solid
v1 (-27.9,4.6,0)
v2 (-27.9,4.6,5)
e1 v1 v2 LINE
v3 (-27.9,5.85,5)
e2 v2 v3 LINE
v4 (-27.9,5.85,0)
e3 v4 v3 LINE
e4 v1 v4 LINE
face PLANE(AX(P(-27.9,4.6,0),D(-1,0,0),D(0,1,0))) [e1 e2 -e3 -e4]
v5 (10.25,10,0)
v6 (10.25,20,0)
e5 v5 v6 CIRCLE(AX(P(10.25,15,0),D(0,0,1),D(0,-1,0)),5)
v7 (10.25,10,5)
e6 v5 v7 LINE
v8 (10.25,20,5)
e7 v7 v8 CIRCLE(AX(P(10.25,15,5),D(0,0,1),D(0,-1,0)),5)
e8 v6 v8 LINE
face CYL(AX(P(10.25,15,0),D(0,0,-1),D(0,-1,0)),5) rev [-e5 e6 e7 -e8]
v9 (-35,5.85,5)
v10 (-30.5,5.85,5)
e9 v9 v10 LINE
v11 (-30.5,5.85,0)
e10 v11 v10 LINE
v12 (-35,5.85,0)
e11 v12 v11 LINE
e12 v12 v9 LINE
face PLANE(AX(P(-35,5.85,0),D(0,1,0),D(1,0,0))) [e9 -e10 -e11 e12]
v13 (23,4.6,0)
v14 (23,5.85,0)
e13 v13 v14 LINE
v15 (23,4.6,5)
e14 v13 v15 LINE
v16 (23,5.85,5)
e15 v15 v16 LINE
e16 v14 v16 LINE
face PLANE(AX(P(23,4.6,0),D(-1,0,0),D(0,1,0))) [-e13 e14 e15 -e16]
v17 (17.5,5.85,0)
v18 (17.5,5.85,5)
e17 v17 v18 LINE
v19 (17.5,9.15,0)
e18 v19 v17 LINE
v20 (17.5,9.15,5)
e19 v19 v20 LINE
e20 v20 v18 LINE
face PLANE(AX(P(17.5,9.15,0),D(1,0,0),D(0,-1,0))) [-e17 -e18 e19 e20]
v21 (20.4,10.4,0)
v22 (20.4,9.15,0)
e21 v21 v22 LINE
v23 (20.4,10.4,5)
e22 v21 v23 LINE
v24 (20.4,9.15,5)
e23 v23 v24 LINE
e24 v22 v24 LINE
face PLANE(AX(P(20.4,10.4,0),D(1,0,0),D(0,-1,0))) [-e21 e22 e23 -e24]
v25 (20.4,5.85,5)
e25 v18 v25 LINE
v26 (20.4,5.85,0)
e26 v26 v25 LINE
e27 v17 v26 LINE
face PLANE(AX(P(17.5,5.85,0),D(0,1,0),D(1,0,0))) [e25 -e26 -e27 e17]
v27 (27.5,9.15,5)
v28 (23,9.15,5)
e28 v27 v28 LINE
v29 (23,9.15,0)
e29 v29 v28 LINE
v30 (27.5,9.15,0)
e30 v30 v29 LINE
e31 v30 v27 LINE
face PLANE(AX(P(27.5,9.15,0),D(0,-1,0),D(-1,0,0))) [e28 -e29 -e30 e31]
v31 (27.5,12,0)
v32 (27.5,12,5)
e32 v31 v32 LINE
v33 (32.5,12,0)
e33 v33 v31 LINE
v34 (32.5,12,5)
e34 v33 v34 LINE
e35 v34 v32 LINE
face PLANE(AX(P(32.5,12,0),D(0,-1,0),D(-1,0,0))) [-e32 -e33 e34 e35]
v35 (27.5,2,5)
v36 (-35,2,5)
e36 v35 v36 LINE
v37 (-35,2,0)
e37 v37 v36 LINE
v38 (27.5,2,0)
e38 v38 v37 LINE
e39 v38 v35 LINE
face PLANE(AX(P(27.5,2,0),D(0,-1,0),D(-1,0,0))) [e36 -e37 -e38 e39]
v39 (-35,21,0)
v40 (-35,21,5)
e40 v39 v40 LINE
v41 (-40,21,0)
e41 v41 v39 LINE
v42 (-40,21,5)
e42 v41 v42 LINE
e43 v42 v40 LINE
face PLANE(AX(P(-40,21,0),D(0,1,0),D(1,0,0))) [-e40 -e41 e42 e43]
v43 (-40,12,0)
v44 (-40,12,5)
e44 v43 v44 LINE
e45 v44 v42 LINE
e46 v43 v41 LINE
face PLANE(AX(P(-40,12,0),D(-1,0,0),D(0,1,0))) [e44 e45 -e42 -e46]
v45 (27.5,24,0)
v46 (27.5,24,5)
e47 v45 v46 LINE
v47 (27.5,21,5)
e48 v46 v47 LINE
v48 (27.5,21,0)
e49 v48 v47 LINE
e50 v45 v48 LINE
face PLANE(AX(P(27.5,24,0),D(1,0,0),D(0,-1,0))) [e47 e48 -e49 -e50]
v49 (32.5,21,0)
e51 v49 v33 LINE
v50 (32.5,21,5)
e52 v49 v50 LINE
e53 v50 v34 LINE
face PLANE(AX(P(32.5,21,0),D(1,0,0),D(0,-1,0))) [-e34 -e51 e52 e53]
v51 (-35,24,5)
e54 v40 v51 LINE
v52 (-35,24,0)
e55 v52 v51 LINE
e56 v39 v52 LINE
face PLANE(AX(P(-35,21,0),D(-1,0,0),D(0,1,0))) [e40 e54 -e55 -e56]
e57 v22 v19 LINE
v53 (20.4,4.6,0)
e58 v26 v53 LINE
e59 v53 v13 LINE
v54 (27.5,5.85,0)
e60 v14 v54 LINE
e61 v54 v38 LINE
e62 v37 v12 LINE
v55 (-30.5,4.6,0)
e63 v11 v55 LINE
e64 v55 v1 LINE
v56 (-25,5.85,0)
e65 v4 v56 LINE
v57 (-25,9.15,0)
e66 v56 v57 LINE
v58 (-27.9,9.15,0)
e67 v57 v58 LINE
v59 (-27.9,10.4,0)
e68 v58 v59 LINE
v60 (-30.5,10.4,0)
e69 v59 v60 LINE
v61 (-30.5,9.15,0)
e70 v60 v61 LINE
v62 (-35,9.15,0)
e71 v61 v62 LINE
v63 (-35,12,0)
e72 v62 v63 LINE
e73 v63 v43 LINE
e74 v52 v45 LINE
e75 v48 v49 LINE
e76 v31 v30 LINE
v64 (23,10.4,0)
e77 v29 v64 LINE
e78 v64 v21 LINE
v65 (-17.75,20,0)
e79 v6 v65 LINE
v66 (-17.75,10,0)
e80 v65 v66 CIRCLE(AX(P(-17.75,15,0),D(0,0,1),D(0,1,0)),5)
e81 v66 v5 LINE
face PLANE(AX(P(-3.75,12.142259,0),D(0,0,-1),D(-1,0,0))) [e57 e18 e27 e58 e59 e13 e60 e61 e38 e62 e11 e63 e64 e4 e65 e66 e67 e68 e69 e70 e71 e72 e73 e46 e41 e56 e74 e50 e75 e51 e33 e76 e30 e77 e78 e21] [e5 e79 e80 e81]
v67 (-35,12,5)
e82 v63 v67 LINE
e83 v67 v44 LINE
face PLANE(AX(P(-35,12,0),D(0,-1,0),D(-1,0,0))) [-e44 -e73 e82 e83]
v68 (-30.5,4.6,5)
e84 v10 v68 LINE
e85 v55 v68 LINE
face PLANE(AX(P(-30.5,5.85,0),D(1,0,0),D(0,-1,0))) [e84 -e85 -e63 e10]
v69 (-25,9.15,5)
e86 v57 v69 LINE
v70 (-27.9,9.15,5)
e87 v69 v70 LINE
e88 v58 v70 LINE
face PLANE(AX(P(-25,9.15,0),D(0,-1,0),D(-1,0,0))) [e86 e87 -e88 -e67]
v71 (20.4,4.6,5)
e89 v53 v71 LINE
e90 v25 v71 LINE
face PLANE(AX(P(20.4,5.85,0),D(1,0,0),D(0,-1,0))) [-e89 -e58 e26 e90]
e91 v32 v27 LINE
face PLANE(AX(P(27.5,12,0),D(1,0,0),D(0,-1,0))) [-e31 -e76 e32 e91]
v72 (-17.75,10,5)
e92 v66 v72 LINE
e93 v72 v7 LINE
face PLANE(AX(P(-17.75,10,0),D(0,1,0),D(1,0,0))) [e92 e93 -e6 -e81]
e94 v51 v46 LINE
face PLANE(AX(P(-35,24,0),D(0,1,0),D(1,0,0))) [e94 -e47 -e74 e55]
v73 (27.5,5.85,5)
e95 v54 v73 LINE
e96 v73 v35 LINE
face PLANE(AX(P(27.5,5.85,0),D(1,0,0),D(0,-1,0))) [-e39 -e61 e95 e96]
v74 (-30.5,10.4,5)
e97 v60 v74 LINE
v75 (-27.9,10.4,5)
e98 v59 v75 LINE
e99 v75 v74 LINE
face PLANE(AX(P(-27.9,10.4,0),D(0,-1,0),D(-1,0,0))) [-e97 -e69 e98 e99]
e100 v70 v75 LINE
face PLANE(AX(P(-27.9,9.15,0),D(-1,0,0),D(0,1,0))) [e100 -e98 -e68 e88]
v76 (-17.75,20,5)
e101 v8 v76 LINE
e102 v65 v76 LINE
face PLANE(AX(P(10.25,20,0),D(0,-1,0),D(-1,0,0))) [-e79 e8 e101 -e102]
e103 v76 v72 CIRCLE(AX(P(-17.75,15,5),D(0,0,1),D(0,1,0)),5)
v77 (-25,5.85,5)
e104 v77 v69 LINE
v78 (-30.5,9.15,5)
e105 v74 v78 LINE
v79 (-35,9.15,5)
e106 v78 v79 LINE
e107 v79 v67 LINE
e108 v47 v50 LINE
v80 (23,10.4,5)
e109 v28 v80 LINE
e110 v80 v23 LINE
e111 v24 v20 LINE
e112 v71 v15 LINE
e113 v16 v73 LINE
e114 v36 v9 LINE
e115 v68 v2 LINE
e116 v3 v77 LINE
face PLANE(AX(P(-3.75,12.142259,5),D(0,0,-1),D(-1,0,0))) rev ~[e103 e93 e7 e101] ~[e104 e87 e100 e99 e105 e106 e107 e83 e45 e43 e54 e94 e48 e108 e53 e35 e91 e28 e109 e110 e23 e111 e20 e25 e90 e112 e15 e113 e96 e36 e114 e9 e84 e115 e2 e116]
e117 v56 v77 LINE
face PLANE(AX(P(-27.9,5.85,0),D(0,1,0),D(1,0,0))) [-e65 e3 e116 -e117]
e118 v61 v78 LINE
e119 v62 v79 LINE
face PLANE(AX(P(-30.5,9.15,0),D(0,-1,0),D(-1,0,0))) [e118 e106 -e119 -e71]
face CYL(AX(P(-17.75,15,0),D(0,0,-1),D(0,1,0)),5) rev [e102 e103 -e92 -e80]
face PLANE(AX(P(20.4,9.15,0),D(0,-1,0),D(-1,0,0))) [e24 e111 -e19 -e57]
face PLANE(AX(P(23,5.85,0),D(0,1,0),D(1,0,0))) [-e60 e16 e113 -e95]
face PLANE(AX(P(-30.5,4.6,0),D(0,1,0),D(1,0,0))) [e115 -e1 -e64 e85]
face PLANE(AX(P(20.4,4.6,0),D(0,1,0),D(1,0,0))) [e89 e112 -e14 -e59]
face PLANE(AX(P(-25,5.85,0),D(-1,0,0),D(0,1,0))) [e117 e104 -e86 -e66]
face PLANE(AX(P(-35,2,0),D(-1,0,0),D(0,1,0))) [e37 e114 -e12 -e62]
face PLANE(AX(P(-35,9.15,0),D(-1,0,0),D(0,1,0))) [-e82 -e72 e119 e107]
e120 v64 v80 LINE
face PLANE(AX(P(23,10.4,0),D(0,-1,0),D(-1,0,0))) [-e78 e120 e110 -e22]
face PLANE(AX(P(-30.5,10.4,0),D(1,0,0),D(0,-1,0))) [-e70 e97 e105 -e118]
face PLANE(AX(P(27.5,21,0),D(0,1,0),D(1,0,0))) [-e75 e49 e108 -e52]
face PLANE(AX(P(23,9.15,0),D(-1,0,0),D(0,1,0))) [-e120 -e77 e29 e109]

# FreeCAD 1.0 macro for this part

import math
import FreeCAD as App
import Part
import Sketcher
from FreeCAD import Vector
Q = App.Units.Quantity


def add_polygon(sketch, points):
    """Adds a closed chain of lines whose ends are joined by coincident constraints."""
    first, n = sketch.GeometryCount, len(points)
    for a, b in zip(points, points[1:] + points[:1]):
        sketch.addGeometry(Part.LineSegment(App.Vector(*a, 0), App.Vector(*b, 0)), False)
    for i in range(n):
        sketch.addConstraint(Sketcher.Constraint("Coincident", first + i, 2, first + (i + 1) % n, 1))

doc = App.newDocument("Part")
params = doc.addObject("Spreadsheet::Sheet", "Params")
for row, (alias, value) in enumerate([
    ("sketch1_radius", "5 mm"),
    ("sketch1_width", "5 mm"),
    ("sketch1_width2", "28 mm"),
    ("sketch1_height", "9 mm"),
    ("sketch1_height2", "3 mm"),
    ("pad1_length", "5 mm"),
], start=1):
    params.set(f"A{row}", alias)
    params.set(f"B{row}", "=" + value)
    params.setAlias(f"B{row}", alias)

body = doc.addObject("PartDesign::Body", "Body")

# Sketch on XY plane
sketch1 = body.newObject("Sketcher::SketchObject", "Sketch")
sketch1.AttachmentSupport = (doc.getObject("XY_Plane"), [""])
sketch1.MapMode = "FlatFace"
add_polygon(sketch1, [(27.5, 12), (32.5, 12), (32.5, 21), (27.5, 21), (27.5, 24), (-35, 24), (-35, 21), (-40, 21), (-40, 12), (-35, 12), (-35, 9.2), (-30.5, 9.2), (-30.5, 10.4), (-27.9, 10.4), (-27.9, 9.2), (-25, 9.2), (-25, 5.8), (-27.9, 5.8), (-27.9, 4.6), (-30.5, 4.6), (-30.5, 5.8), (-35, 5.8), (-35, 2), (27.5, 2), (27.5, 5.8), (23, 5.8), (23, 4.6), (20.4, 4.6), (20.4, 5.8), (17.5, 5.8), (17.5, 9.2), (20.4, 9.2), (20.4, 10.4), (23, 10.4), (23, 9.2), (27.5, 9.2)])  # lines 0-35
sketch1.addGeometry(Part.ArcOfCircle(Part.Circle(Vector(10.2, 15, 0), Vector(0, 0, 1), 5), math.radians(-90), math.radians(90)), False)  # 36
sketch1.addGeometry(Part.LineSegment(Vector(10.2, 10, 0), Vector(-17.8, 10, 0)), False)  # 37
sketch1.addGeometry(Part.ArcOfCircle(Part.Circle(Vector(-17.8, 15, 0), Vector(0, 0, 1), 5), math.radians(90), math.radians(270)), False)  # 38
sketch1.addGeometry(Part.LineSegment(Vector(-17.8, 20, 0), Vector(10.2, 20, 0)), False)  # 39
sketch1.addConstraint(Sketcher.Constraint("Tangent", 36, 1, 37, 1))
sketch1.addConstraint(Sketcher.Constraint("Tangent", 37, 2, 38, 2))
sketch1.addConstraint(Sketcher.Constraint("Tangent", 38, 1, 39, 1))
sketch1.addConstraint(Sketcher.Constraint("Tangent", 39, 2, 36, 2))
sketch1.addConstraint(Sketcher.Constraint("Horizontal", 0))
sketch1.addConstraint(Sketcher.Constraint("Vertical", 1))
sketch1.addConstraint(Sketcher.Constraint("Horizontal", 2))
sketch1.addConstraint(Sketcher.Constraint("Vertical", 3))
sketch1.addConstraint(Sketcher.Constraint("Horizontal", 4))
sketch1.addConstraint(Sketcher.Constraint("Vertical", 5))
sketch1.addConstraint(Sketcher.Constraint("Horizontal", 6))
sketch1.addConstraint(Sketcher.Constraint("Vertical", 7))
sketch1.addConstraint(Sketcher.Constraint("Horizontal", 8))
sketch1.addConstraint(Sketcher.Constraint("Vertical", 9))
sketch1.addConstraint(Sketcher.Constraint("Horizontal", 10))
sketch1.addConstraint(Sketcher.Constraint("Vertical", 11))
sketch1.addConstraint(Sketcher.Constraint("Horizontal", 12))
sketch1.addConstraint(Sketcher.Constraint("Vertical", 13))
sketch1.addConstraint(Sketcher.Constraint("Horizontal", 14))
sketch1.addConstraint(Sketcher.Constraint("Vertical", 15))
sketch1.addConstraint(Sketcher.Constraint("Horizontal", 16))
sketch1.addConstraint(Sketcher.Constraint("Vertical", 17))
sketch1.addConstraint(Sketcher.Constraint("Horizontal", 18))
sketch1.addConstraint(Sketcher.Constraint("Vertical", 19))
sketch1.addConstraint(Sketcher.Constraint("Horizontal", 20))
sketch1.addConstraint(Sketcher.Constraint("Vertical", 21))
sketch1.addConstraint(Sketcher.Constraint("Horizontal", 22))
sketch1.addConstraint(Sketcher.Constraint("Vertical", 23))
sketch1.addConstraint(Sketcher.Constraint("Horizontal", 24))
sketch1.addConstraint(Sketcher.Constraint("Vertical", 25))
sketch1.addConstraint(Sketcher.Constraint("Horizontal", 26))
sketch1.addConstraint(Sketcher.Constraint("Vertical", 27))
sketch1.addConstraint(Sketcher.Constraint("Horizontal", 28))
sketch1.addConstraint(Sketcher.Constraint("Vertical", 29))
sketch1.addConstraint(Sketcher.Constraint("Horizontal", 30))
sketch1.addConstraint(Sketcher.Constraint("Vertical", 31))
sketch1.addConstraint(Sketcher.Constraint("Horizontal", 32))
sketch1.addConstraint(Sketcher.Constraint("Vertical", 33))
sketch1.addConstraint(Sketcher.Constraint("Horizontal", 34))
sketch1.addConstraint(Sketcher.Constraint("Vertical", 35))
sketch1.addConstraint(Sketcher.Constraint("Horizontal", 37))
sketch1.addConstraint(Sketcher.Constraint("Horizontal", 39))
sketch1.addConstraint(Sketcher.Constraint("Horizontal", 2, 2, 5, 2))
sketch1.addConstraint(Sketcher.Constraint("Horizontal", 0, 2, 7, 2))
sketch1.addConstraint(Sketcher.Constraint("Horizontal", 10, 2, 13, 2))
sketch1.addConstraint(Sketcher.Constraint("Horizontal", 16, 2, 19, 2))
sketch1.addConstraint(Sketcher.Constraint("Horizontal", 20, 2, 23, 2))
sketch1.addConstraint(Sketcher.Constraint("Horizontal", 18, 2, 25, 2))
sketch1.addConstraint(Sketcher.Constraint("Horizontal", 24, 2, 27, 2))
sketch1.addConstraint(Sketcher.Constraint("Horizontal", 14, 2, 29, 2))
sketch1.addConstraint(Sketcher.Constraint("Horizontal", 12, 2, 31, 2))
sketch1.addConstraint(Sketcher.Constraint("Horizontal", 30, 2, 33, 2))
sketch1.addConstraint(Sketcher.Constraint("Vertical", 5, 2, 8, 2))
sketch1.addConstraint(Sketcher.Constraint("Vertical", 13, 2, 16, 2))
sketch1.addConstraint(Sketcher.Constraint("Vertical", 11, 2, 18, 2))
sketch1.addConstraint(Sketcher.Constraint("Vertical", 9, 2, 20, 2))
sketch1.addConstraint(Sketcher.Constraint("Vertical", 3, 2, 22, 2))
sketch1.addConstraint(Sketcher.Constraint("Vertical", 27, 2, 30, 2))
sketch1.addConstraint(Sketcher.Constraint("Vertical", 25, 2, 32, 2))
sketch1.addConstraint(Sketcher.Constraint("Vertical", 23, 2, 34, 2))
sketch1.addConstraint(Sketcher.Constraint("Equal", 2, 6))
sketch1.addConstraint(Sketcher.Constraint("Equal", 20, 24))
sketch1.addConstraint(Sketcher.Constraint("Equal", 18, 26))
sketch1.addConstraint(Sketcher.Constraint("Equal", 16, 28))
sketch1.addConstraint(Sketcher.Constraint("Equal", 13, 17))
sketch1.addConstraint(Sketcher.Constraint("Radius", 36, Q("5 mm")))
sketch1.addConstraint(Sketcher.Constraint("DistanceX", 0, 1, 0, 2, Q("5 mm")))
sketch1.addConstraint(Sketcher.Constraint("DistanceX", 37, 2, 37, 1, Q("28 mm")))
sketch1.addConstraint(Sketcher.Constraint("DistanceY", 1, 1, 1, 2, Q("9 mm")))
sketch1.addConstraint(Sketcher.Constraint("DistanceY", 3, 1, 3, 2, Q("3 mm")))
sketch1.addConstraint(Sketcher.Constraint("DistanceX", 4, 2, 4, 1, Q("62.5 mm")))
sketch1.addConstraint(Sketcher.Constraint("DistanceX", 10, 1, 10, 2, Q("4.5 mm")))
sketch1.addConstraint(Sketcher.Constraint("DistanceX", 12, 1, 12, 2, Q("2.6 mm")))
sketch1.addConstraint(Sketcher.Constraint("DistanceX", 14, 1, 14, 2, Q("2.9 mm")))
sketch1.addConstraint(Sketcher.Constraint("DistanceY", 15, 2, 15, 1, Q("3.3 mm")))
sketch1.addConstraint(Sketcher.Constraint("DistanceY", -1, 1, 36, 3, Q("15 mm")))
sketch1.addConstraint(Sketcher.Constraint("DistanceY", -1, 1, 0, 2, Q("12 mm")))
sketch1.addConstraint(Sketcher.Constraint("DistanceX", 4, 2, -1, 1, Q("35 mm")))
sketch1.addConstraint(Sketcher.Constraint("DistanceY", -1, 1, 21, 2, Q("2 mm")))
sketch1.addConstraint(Sketcher.Constraint("DistanceY", 9, 2, 9, 1, Q("2.85 mm")))
sketch1.addConstraint(Sketcher.Constraint("DistanceY", 11, 1, 11, 2, Q("1.25 mm")))
sketch1.addConstraint(Sketcher.Constraint("DistanceX", -1, 1, 36, 3, Q("10.25 mm")))
sketch1.setExpression("Constraints[101]", "Params.sketch1_radius")
sketch1.setExpression("Constraints[102]", "Params.sketch1_width")
sketch1.setExpression("Constraints[103]", "Params.sketch1_width2")
sketch1.setExpression("Constraints[104]", "Params.sketch1_height")
sketch1.setExpression("Constraints[105]", "Params.sketch1_height2")
pad1 = body.newObject("PartDesign::Pad", "Pad")
pad1.Profile = sketch1
pad1.setExpression("Length", "Params.pad1_length")

doc.recompute()
